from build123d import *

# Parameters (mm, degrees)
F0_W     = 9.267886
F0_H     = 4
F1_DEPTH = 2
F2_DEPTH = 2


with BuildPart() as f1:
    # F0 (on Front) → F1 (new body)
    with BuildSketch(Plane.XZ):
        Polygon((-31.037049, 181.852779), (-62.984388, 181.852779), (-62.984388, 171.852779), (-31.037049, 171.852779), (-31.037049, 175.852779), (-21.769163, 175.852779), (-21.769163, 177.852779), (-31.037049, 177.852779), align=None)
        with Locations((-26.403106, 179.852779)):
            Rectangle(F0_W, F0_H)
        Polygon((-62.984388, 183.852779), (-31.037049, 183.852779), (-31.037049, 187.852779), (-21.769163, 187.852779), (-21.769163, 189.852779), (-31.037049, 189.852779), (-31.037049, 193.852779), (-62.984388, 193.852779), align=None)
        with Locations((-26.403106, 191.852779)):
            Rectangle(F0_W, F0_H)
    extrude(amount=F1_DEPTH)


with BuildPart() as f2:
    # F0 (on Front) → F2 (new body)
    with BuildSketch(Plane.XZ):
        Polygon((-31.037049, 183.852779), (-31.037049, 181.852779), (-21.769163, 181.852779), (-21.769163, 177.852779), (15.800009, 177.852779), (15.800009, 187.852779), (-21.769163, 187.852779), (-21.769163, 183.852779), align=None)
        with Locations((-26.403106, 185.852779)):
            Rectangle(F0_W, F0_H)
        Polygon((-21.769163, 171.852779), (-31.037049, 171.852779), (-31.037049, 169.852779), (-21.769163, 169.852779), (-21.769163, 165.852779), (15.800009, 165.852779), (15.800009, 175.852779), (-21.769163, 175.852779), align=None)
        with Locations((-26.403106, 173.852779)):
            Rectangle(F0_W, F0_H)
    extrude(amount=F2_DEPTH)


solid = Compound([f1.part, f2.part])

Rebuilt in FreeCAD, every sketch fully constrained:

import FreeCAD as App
import Part
import Sketcher

V = App.Vector
Q = App.Units.Quantity


def add_polygon(sketch, points):
    """Adds a closed chain of lines whose ends are joined by coincident constraints."""
    first, n = sketch.GeometryCount, len(points)
    for a, b in zip(points, points[1:] + points[:1]):
        sketch.addGeometry(Part.LineSegment(App.Vector(*a, 0), App.Vector(*b, 0)), False)
    for i in range(n):
        sketch.addConstraint(Sketcher.Constraint("Coincident", first + i, 2, first + (i + 1) % n, 1))

doc = App.newDocument("Part")
params = doc.addObject("Spreadsheet::Sheet", "Params")
for row, (alias, value) in enumerate([
    ("sketch1_height", "10 mm"),
    ("sketch1_height2", "4 mm"),
    ("pad1_length", "2 mm"),
    ("sketch2_height", "4 mm"),
    ("sketch2_height2", "10 mm"),
    ("pad2_length", "2 mm"),
], start=1):
    params.set(f"A{row}", alias)
    params.set(f"B{row}", "=" + value)
    params.setAlias(f"B{row}", alias)

body = doc.addObject("PartDesign::Body", "Body")
body.AllowCompound = True

# Sketch on XZ plane
sketch1 = body.newObject("Sketcher::SketchObject", "Sketch")
sketch1.AttachmentSupport = (doc.getObject("XZ_Plane"), [""])
sketch1.MapMode = "FlatFace"
add_polygon(sketch1, [(-63, 181.9), (-63, 171.9), (-31, 171.9), (-31, 175.9), (-21.8, 175.9), (-21.8, 181.9)])  # lines 0-5
add_polygon(sketch1, [(-63, 183.9), (-31, 183.9), (-31, 187.9), (-21.8, 187.9), (-21.8, 193.9), (-63, 193.9)])  # lines 6-11
sketch1.addConstraint(Sketcher.Constraint("Vertical", 0))
sketch1.addConstraint(Sketcher.Constraint("Horizontal", 1))
sketch1.addConstraint(Sketcher.Constraint("Vertical", 2))
sketch1.addConstraint(Sketcher.Constraint("Horizontal", 3))
sketch1.addConstraint(Sketcher.Constraint("Vertical", 4))
sketch1.addConstraint(Sketcher.Constraint("Horizontal", 5))
sketch1.addConstraint(Sketcher.Constraint("Horizontal", 6))
sketch1.addConstraint(Sketcher.Constraint("Vertical", 7))
sketch1.addConstraint(Sketcher.Constraint("Horizontal", 8))
sketch1.addConstraint(Sketcher.Constraint("Vertical", 9))
sketch1.addConstraint(Sketcher.Constraint("Horizontal", 10))
sketch1.addConstraint(Sketcher.Constraint("Vertical", 11))
sketch1.addConstraint(Sketcher.Constraint("Vertical", 2, 2, 6, 2))
sketch1.addConstraint(Sketcher.Constraint("Vertical", 4, 2, 8, 2))
sketch1.addConstraint(Sketcher.Constraint("Vertical", 5, 2, 10, 2))
sketch1.addConstraint(Sketcher.Constraint("Equal", 2, 7))
sketch1.addConstraint(Sketcher.Constraint("Equal", 4, 9))
sketch1.addConstraint(Sketcher.Constraint("DistanceY", 0, 2, 0, 1, Q("10 mm")))
sketch1.addConstraint(Sketcher.Constraint("DistanceY", 2, 1, 2, 2, Q("4 mm")))
sketch1.addConstraint(Sketcher.Constraint("DistanceY", 2, 2, 6, 2, Q("8 mm")))
sketch1.addConstraint(Sketcher.Constraint("DistanceX", 1, 1, 1, 2, Q("31.947339 mm")))
sketch1.addConstraint(Sketcher.Constraint("DistanceX", 3, 1, 3, 2, Q("9.267886 mm")))
sketch1.addConstraint(Sketcher.Constraint("DistanceX", 0, 2, -1, 1, Q("62.984388 mm")))
sketch1.addConstraint(Sketcher.Constraint("DistanceY", -1, 1, 0, 2, Q("171.852779 mm")))
sketch1.setExpression("Constraints[29]", "Params.sketch1_height")
sketch1.setExpression("Constraints[30]", "Params.sketch1_height2")
pad1 = body.newObject("PartDesign::Pad", "Pad")
pad1.Profile = sketch1
pad1.setExpression("Length", "Params.pad1_length")
body2 = doc.addObject("PartDesign::Body", "Body001")
body2.AllowCompound = True

# Sketch on XZ plane
sketch2 = body2.newObject("Sketcher::SketchObject", "Sketch001")
sketch2.AttachmentSupport = (doc.getObject("XZ_Plane001"), [""])
sketch2.MapMode = "FlatFace"
add_polygon(sketch2, [(-31, 181.9), (-21.8, 181.9), (-21.8, 177.9), (15.8, 177.9), (15.8, 187.9), (-31, 187.9)])  # lines 0-5
add_polygon(sketch2, [(-31, 169.9), (-21.8, 169.9), (-21.8, 165.9), (15.8, 165.9), (15.8, 175.9), (-31, 175.9)])  # lines 6-11
sketch2.addConstraint(Sketcher.Constraint("Horizontal", 0))
sketch2.addConstraint(Sketcher.Constraint("Vertical", 1))
sketch2.addConstraint(Sketcher.Constraint("Horizontal", 2))
sketch2.addConstraint(Sketcher.Constraint("Vertical", 3))
sketch2.addConstraint(Sketcher.Constraint("Horizontal", 4))
sketch2.addConstraint(Sketcher.Constraint("Vertical", 5))
sketch2.addConstraint(Sketcher.Constraint("Horizontal", 6))
sketch2.addConstraint(Sketcher.Constraint("Vertical", 7))
sketch2.addConstraint(Sketcher.Constraint("Horizontal", 8))
sketch2.addConstraint(Sketcher.Constraint("Vertical", 9))
sketch2.addConstraint(Sketcher.Constraint("Horizontal", 10))
sketch2.addConstraint(Sketcher.Constraint("Vertical", 11))
sketch2.addConstraint(Sketcher.Constraint("Vertical", 1, 2, 6, 2))
sketch2.addConstraint(Sketcher.Constraint("Vertical", 3, 2, 8, 2))
sketch2.addConstraint(Sketcher.Constraint("Vertical", 5, 2, 10, 2))
sketch2.addConstraint(Sketcher.Constraint("Equal", 1, 7))
sketch2.addConstraint(Sketcher.Constraint("Equal", 3, 9))
sketch2.addConstraint(Sketcher.Constraint("DistanceY", 1, 2, 1, 1, Q("4 mm")))
sketch2.addConstraint(Sketcher.Constraint("DistanceY", 3, 1, 3, 2, Q("10 mm")))
sketch2.addConstraint(Sketcher.Constraint("DistanceY", 6, 2, 1, 2, Q("8 mm")))
sketch2.addConstraint(Sketcher.Constraint("DistanceX", 2, 1, 2, 2, Q("37.569172 mm")))
sketch2.addConstraint(Sketcher.Constraint("DistanceX", 0, 1, 0, 2, Q("9.267886 mm")))
sketch2.addConstraint(Sketcher.Constraint("DistanceY", -1, 1, 0, 2, Q("181.852779 mm")))
sketch2.addConstraint(Sketcher.Constraint("DistanceX", -1, 1, 2, 2, Q("15.800009 mm")))
sketch2.setExpression("Constraints[29]", "Params.sketch2_height")
sketch2.setExpression("Constraints[30]", "Params.sketch2_height2")
pad2 = body2.newObject("PartDesign::Pad", "Pad001")
pad2.Profile = sketch2
pad2.setExpression("Length", "Params.pad2_length")

doc.recompute()
